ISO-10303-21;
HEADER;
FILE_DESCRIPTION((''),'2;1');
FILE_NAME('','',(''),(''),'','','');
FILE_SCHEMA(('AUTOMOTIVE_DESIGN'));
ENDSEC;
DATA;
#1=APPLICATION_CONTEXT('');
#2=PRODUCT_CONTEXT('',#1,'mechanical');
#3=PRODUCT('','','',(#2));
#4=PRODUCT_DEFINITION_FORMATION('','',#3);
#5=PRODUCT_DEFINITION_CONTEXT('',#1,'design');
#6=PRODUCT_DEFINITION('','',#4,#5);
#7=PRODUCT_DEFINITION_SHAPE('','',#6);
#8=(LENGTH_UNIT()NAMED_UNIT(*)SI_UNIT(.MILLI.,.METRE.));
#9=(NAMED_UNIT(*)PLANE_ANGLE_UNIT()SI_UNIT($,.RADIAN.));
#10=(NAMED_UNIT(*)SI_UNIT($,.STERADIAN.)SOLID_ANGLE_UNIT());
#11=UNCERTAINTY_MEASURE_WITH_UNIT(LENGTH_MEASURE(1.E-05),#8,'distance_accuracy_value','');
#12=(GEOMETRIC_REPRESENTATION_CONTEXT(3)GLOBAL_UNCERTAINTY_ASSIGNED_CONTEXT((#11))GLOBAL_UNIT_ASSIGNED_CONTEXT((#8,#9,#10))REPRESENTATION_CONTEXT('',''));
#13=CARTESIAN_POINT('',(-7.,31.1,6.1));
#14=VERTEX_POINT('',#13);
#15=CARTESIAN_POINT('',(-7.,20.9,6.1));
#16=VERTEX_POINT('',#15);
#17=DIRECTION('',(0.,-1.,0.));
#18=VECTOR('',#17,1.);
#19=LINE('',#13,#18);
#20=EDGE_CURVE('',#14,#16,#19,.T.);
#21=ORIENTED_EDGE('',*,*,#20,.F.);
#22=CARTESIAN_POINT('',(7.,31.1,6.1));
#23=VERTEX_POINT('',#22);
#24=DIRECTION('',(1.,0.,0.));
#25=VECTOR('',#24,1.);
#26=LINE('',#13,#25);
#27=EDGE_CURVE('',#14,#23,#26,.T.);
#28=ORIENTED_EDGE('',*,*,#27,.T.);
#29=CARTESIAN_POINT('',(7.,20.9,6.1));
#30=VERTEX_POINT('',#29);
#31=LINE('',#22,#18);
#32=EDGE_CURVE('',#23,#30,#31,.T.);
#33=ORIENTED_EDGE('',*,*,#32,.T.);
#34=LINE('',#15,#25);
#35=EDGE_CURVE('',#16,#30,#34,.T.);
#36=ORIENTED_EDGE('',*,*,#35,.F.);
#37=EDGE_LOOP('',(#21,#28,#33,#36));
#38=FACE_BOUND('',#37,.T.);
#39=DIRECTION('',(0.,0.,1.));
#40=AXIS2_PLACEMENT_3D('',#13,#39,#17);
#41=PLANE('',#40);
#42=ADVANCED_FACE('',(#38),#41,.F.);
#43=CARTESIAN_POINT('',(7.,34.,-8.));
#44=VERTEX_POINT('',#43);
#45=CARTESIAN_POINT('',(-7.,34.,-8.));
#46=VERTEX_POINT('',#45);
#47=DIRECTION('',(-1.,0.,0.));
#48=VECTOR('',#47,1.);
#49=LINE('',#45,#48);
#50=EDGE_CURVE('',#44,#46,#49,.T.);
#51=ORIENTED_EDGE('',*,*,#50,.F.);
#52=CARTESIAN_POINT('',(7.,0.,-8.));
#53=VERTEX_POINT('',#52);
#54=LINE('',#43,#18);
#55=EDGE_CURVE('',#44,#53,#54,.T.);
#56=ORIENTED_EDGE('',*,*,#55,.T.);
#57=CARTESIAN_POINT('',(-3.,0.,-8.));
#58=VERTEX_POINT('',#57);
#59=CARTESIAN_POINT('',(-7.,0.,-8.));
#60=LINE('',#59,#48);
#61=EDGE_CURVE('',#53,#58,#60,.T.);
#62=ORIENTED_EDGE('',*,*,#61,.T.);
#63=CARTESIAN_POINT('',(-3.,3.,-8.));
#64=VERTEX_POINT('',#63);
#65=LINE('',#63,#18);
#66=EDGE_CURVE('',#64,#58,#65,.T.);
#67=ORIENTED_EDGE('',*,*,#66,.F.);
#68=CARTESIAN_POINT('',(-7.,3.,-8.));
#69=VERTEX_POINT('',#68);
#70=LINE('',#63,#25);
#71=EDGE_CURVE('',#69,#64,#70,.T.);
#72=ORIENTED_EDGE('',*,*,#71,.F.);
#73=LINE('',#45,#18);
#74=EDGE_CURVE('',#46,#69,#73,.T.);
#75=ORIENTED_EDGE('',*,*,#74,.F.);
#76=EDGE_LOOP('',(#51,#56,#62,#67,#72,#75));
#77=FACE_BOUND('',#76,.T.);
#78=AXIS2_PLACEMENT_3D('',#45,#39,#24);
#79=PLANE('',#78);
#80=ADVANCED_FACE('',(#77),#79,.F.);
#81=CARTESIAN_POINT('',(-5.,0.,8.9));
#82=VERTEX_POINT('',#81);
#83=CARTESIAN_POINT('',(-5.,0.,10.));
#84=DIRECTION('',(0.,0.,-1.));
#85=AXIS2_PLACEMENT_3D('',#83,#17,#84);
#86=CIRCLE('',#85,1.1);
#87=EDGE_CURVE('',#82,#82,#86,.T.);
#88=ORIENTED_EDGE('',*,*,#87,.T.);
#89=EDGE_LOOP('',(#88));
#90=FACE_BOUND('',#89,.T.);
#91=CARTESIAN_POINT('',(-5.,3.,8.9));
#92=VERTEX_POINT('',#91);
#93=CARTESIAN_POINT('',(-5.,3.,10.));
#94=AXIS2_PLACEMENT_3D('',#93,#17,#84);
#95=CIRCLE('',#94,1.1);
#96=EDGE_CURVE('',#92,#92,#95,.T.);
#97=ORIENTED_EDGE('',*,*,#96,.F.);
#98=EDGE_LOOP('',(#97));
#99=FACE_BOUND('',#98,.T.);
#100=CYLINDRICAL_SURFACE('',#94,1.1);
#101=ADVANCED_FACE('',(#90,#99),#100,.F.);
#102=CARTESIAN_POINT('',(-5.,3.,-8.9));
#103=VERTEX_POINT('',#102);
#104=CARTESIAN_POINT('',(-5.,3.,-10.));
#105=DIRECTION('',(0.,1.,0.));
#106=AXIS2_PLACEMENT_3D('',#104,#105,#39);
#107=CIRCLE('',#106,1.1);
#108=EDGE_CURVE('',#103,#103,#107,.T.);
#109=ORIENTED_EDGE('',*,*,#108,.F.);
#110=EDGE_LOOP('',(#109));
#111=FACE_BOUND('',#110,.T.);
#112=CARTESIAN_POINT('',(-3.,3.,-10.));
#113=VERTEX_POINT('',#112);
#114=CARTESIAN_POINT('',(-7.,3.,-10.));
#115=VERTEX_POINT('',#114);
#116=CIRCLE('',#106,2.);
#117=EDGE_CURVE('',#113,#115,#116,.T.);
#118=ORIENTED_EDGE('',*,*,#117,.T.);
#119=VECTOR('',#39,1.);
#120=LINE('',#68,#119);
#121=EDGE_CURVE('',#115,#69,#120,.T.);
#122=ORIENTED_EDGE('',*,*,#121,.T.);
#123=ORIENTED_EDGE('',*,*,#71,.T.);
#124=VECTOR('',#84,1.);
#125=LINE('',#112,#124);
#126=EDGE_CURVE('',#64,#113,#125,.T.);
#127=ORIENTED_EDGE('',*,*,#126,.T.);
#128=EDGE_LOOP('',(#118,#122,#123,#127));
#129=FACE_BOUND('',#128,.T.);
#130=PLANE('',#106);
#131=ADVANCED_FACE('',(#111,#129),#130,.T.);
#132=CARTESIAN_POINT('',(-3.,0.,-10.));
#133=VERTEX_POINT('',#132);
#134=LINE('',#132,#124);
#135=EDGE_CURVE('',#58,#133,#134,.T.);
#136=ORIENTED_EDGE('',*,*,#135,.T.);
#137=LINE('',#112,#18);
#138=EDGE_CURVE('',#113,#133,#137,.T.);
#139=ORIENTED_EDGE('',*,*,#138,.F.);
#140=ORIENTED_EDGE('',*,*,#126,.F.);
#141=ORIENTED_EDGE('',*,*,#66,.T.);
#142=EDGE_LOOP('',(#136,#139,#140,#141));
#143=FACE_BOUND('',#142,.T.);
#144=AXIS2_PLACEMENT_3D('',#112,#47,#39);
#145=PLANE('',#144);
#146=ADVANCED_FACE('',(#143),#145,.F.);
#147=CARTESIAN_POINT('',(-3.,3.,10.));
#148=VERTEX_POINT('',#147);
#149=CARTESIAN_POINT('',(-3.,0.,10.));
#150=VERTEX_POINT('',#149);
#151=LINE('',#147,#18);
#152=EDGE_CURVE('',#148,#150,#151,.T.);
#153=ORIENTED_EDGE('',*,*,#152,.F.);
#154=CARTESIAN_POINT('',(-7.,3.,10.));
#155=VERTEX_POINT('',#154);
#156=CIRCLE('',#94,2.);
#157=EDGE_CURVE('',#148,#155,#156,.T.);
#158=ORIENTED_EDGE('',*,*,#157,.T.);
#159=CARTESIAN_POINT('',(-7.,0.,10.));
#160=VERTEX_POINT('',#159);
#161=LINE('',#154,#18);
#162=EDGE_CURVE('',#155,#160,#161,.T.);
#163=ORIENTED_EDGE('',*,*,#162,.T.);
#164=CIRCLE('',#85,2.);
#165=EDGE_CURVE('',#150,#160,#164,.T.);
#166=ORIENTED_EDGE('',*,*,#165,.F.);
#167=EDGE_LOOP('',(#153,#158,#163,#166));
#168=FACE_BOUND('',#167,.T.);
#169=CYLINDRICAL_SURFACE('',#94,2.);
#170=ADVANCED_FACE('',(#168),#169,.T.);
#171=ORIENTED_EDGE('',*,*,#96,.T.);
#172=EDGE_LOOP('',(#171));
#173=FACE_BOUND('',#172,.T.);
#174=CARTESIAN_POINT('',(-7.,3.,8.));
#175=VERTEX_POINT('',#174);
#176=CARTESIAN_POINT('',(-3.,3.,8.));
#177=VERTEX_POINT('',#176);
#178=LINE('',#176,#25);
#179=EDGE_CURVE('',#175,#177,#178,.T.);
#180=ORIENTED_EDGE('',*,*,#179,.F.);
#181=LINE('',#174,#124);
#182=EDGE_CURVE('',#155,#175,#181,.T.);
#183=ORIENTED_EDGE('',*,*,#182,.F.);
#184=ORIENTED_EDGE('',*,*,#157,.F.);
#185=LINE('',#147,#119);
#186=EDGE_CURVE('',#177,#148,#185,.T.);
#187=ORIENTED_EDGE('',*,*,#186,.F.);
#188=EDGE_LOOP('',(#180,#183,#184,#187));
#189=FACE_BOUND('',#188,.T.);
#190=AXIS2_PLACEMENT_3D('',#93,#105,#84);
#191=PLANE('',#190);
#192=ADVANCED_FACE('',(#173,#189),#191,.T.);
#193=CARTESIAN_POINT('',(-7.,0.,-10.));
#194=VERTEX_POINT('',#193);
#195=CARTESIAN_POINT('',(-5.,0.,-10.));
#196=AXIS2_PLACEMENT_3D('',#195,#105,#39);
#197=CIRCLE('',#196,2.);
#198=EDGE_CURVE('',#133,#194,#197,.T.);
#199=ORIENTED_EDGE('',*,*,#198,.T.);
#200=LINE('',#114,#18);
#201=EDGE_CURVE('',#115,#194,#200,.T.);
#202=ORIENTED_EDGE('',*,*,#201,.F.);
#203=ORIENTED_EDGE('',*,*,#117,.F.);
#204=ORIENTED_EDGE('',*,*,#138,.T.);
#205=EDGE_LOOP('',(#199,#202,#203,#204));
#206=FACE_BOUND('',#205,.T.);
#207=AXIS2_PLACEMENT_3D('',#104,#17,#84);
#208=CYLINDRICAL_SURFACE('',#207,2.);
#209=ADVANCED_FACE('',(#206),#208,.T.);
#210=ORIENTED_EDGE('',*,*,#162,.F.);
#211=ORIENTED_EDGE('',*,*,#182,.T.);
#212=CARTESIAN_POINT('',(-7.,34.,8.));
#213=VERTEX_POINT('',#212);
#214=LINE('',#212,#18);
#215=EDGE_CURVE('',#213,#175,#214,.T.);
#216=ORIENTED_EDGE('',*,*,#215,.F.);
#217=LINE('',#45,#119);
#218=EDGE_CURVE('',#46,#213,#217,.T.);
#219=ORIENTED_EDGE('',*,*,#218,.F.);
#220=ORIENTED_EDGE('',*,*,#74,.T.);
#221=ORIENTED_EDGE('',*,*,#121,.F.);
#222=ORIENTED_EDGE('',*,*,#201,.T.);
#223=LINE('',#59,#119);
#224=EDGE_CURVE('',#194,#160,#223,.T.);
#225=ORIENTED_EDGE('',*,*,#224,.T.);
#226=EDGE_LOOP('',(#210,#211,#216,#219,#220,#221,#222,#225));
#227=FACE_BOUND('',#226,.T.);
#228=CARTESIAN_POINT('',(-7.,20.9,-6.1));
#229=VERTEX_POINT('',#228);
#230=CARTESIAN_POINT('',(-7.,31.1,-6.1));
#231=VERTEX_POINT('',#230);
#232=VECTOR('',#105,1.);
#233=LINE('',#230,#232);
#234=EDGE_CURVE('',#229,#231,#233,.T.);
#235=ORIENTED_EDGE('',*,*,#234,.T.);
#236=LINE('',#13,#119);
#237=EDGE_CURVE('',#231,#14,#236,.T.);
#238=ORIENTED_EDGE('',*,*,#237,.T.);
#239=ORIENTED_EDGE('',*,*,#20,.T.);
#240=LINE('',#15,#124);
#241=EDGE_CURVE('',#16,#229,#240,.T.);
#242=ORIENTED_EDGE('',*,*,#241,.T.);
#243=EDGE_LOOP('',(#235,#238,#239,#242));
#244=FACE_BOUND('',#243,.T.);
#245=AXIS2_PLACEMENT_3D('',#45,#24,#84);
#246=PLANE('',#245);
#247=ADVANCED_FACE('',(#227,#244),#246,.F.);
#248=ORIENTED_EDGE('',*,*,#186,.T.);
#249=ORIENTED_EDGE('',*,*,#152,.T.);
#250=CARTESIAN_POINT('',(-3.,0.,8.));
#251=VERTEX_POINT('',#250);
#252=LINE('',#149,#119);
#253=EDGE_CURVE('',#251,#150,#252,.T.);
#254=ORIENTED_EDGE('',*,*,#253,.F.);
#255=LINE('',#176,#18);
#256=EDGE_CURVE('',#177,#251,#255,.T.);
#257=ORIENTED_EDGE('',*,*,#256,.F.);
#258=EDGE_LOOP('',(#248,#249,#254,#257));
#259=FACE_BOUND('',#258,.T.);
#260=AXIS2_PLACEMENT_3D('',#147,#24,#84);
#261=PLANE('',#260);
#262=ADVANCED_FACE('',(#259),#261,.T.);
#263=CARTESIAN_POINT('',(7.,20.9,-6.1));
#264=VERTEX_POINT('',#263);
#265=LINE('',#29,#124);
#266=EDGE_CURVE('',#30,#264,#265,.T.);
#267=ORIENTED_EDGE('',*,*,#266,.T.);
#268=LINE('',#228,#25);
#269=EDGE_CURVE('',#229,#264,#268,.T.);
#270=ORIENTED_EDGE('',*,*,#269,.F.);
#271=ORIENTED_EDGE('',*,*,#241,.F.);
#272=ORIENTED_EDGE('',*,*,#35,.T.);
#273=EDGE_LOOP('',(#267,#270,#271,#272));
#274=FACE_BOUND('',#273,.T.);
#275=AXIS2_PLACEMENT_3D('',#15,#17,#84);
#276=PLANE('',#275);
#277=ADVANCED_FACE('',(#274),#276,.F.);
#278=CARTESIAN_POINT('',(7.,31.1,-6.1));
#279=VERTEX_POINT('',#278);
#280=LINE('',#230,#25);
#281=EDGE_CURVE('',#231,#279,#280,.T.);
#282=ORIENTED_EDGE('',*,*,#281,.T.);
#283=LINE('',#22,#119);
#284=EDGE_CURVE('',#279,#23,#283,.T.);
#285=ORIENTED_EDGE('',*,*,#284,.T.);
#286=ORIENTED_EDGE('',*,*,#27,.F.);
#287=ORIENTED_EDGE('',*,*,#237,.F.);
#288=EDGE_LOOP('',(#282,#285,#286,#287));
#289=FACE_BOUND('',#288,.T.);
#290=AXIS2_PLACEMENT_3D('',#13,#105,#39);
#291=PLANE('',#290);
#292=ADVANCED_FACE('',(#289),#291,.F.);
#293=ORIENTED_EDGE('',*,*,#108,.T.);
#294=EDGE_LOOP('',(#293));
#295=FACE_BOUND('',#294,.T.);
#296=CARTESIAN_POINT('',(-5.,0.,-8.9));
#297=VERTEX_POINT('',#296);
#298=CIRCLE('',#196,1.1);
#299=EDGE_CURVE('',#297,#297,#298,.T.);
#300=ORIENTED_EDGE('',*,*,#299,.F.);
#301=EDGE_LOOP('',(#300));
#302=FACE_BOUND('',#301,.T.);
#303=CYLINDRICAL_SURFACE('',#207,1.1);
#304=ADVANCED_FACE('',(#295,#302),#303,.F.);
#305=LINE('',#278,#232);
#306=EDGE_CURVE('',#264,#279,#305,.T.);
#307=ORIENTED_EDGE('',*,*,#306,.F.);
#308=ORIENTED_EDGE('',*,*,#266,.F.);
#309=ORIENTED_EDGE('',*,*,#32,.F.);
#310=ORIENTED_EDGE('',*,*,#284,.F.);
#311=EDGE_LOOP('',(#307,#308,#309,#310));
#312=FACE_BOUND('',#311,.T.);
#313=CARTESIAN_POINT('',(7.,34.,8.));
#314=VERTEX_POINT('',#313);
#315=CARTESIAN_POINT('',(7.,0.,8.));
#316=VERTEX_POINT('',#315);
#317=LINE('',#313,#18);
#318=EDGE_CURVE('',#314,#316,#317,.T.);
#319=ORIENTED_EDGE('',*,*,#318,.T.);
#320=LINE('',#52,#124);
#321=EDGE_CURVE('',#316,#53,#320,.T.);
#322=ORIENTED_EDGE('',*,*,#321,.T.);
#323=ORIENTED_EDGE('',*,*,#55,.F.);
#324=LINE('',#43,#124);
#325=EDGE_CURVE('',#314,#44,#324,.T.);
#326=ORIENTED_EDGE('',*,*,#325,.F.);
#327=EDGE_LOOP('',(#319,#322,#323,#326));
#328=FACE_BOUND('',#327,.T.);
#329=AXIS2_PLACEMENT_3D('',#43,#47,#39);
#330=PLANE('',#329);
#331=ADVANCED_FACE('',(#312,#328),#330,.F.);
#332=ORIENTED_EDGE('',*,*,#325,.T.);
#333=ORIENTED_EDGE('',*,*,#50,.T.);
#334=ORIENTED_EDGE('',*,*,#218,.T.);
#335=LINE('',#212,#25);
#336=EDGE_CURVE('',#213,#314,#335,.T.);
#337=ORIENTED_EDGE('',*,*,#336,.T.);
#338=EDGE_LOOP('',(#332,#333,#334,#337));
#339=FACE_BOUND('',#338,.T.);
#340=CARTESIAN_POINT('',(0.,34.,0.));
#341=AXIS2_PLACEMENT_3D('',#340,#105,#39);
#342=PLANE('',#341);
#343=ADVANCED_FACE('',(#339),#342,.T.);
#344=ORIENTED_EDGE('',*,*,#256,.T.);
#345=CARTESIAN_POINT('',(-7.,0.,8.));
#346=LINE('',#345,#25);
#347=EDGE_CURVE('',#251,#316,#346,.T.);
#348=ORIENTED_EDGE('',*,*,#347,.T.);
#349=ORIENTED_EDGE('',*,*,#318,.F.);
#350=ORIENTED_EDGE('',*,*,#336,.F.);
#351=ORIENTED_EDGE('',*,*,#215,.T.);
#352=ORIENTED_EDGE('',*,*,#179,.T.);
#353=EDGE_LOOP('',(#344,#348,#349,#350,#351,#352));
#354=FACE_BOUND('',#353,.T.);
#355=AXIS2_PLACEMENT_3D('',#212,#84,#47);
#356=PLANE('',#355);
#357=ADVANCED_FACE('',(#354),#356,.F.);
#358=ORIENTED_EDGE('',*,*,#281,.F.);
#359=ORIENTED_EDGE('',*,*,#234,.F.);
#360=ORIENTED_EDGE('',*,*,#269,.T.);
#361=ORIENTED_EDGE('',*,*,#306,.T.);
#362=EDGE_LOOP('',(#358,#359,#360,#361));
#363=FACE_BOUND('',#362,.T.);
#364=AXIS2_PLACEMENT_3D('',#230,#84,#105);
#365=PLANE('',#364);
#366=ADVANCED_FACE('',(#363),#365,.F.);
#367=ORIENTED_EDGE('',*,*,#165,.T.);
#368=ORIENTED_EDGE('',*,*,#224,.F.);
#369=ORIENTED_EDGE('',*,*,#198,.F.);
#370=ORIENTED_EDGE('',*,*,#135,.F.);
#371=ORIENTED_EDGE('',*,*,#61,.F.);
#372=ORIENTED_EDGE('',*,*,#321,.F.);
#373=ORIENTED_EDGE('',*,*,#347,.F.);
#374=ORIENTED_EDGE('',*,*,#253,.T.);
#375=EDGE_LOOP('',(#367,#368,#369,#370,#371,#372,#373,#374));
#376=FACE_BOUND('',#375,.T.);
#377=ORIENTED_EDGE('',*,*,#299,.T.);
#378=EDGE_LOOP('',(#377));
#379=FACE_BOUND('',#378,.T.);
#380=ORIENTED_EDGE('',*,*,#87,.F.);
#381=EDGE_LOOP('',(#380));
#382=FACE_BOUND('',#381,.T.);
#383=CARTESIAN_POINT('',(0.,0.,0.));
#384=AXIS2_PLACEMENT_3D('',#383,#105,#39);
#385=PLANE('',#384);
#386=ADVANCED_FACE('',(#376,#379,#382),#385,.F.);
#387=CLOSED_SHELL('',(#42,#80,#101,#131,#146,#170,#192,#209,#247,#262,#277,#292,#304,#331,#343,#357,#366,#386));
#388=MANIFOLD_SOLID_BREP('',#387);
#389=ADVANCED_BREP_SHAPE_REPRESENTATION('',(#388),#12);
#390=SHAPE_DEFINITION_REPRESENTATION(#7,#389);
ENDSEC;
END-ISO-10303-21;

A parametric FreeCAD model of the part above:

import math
import FreeCAD as App
import Part
import Sketcher

V = App.Vector
Q = App.Units.Quantity

doc = App.newDocument("Part")
body = doc.addObject("PartDesign::Body", "Body")

# Sketch on XZ plane
sketch1 = body.newObject("Sketcher::SketchObject", "Sketch")
sketch1.AttachmentSupport = (doc.getObject("XZ_Plane"), [""])
sketch1.MapMode = "FlatFace"
sketch1.addGeometry(Part.LineSegment(V(-7, -8, 0), V(-7, 8, 0)), False)
sketch1.addGeometry(Part.LineSegment(V(-7, 8, 0), V(7, 8, 0)), False)
sketch1.addGeometry(Part.LineSegment(V(7, 8, 0), V(7, -8, 0)), False)
sketch1.addGeometry(Part.LineSegment(V(7, -8, 0), V(-7, -8, 0)), False)
sketch1.addConstraint(Sketcher.Constraint("Coincident", 0, 2, 1, 1))
sketch1.addConstraint(Sketcher.Constraint("Coincident", 1, 2, 2, 1))
sketch1.addConstraint(Sketcher.Constraint("Coincident", 2, 2, 3, 1))
sketch1.addConstraint(Sketcher.Constraint("Coincident", 3, 2, 0, 1))
sketch1.addConstraint(Sketcher.Constraint("Vertical", 0))
sketch1.addConstraint(Sketcher.Constraint("Horizontal", 1))
sketch1.addConstraint(Sketcher.Constraint("Vertical", 2))
sketch1.addConstraint(Sketcher.Constraint("Horizontal", 3))
sketch1.addConstraint(Sketcher.Constraint("Symmetric", 0, 2, 2, 2, -1, 1))
sketch1.addConstraint(Sketcher.Constraint("DistanceX", 1, 1, 1, 2, Q("14 mm")))
sketch1.addConstraint(Sketcher.Constraint("DistanceY", 0, 1, 0, 2, Q("16 mm")))
pad1 = body.newObject("PartDesign::Pad", "Pad")
pad1.Profile = sketch1
pad1.Length = 34
pad1.Reversed = True

# Sketch on YZ plane
sketch2 = body.newObject("Sketcher::SketchObject", "Sketch001")
sketch2.AttachmentSupport = (doc.getObject("YZ_Plane"), [""])
sketch2.MapMode = "FlatFace"
sketch2.addGeometry(Part.LineSegment(V(31, 6, 0), V(21, 6, 0)), False)
sketch2.addGeometry(Part.LineSegment(V(21, 6, 0), V(21, -6, 0)), False)
sketch2.addGeometry(Part.LineSegment(V(21, -6, 0), V(31, -6, 0)), False)
sketch2.addGeometry(Part.LineSegment(V(31, -6, 0), V(31, 6, 0)), False)
sketch2.addConstraint(Sketcher.Constraint("Coincident", 0, 2, 1, 1))
sketch2.addConstraint(Sketcher.Constraint("Coincident", 1, 2, 2, 1))
sketch2.addConstraint(Sketcher.Constraint("Coincident", 2, 2, 3, 1))
sketch2.addConstraint(Sketcher.Constraint("Coincident", 3, 2, 0, 1))
sketch2.addConstraint(Sketcher.Constraint("Horizontal", 0))
sketch2.addConstraint(Sketcher.Constraint("Vertical", 1))
sketch2.addConstraint(Sketcher.Constraint("Horizontal", 2))
sketch2.addConstraint(Sketcher.Constraint("Vertical", 3))
sketch2.addConstraint(Sketcher.Constraint("DistanceX", 0, 2, 0, 1, Q("10.2 mm")))
sketch2.addConstraint(Sketcher.Constraint("DistanceY", 1, 2, 1, 1, Q("12.2 mm")))
sketch2.addConstraint(Sketcher.Constraint("DistanceX", -1, 1, 0, 2, Q("20.9 mm")))
sketch2.addConstraint(Sketcher.Constraint("DistanceY", -1, 1, 0, 2, Q("6.1 mm")))
pocket1 = body.newObject("PartDesign::Pocket", "Pocket")
pocket1.Profile = sketch2
pocket1.Type = "ThroughAll"
pocket1.Midplane = True

# Sketch on XZ plane
sketch3 = body.newObject("Sketcher::SketchObject", "Sketch002")
sketch3.AttachmentSupport = (doc.getObject("XZ_Plane"), [""])
sketch3.MapMode = "FlatFace"
sketch3.addGeometry(Part.LineSegment(V(-7, -10, 0), V(-7, -8, 0)), False)
sketch3.addGeometry(Part.LineSegment(V(-7, -8, 0), V(-3, -8, 0)), False)
sketch3.addGeometry(Part.LineSegment(V(-3, -8, 0), V(-3, -10, 0)), False)
sketch3.addGeometry(Part.ArcOfCircle(Part.Circle(V(-5, -10, 0), V(0, 0, 1), 2), math.radians(180), math.radians(360)), False)
sketch3.addGeometry(Part.Circle(V(-5, -10, 0), V(0, 0, 1), 1.1), False)
sketch3.addConstraint(Sketcher.Constraint("Coincident", 0, 2, 1, 1))
sketch3.addConstraint(Sketcher.Constraint("Coincident", 1, 2, 2, 1))
sketch3.addConstraint(Sketcher.Constraint("Tangent", 2, 2, 3, 2))
sketch3.addConstraint(Sketcher.Constraint("Tangent", 3, 1, 0, 1))
sketch3.addConstraint(Sketcher.Constraint("Vertical", 0))
sketch3.addConstraint(Sketcher.Constraint("Horizontal", 1))
sketch3.addConstraint(Sketcher.Constraint("Vertical", 2))
sketch3.addConstraint(Sketcher.Constraint("Coincident", 4, 3, 3, 3))
sketch3.addConstraint(Sketcher.Constraint("Radius", 3, Q("2 mm")))
sketch3.addConstraint(Sketcher.Constraint("Diameter", 4, Q("2.2 mm")))
sketch3.addConstraint(Sketcher.Constraint("DistanceY", 0, 1, 0, 2, Q("2 mm")))
sketch3.addConstraint(Sketcher.Constraint("DistanceX", 3, 3, -1, 1, Q("5 mm")))
sketch3.addConstraint(Sketcher.Constraint("DistanceY", 3, 3, -1, 1, Q("10 mm")))
pad2 = body.newObject("PartDesign::Pad", "Pad001")
pad2.Profile = sketch3
pad2.Length = 3
pad2.Reversed = True
doc.recompute()

mirrored = body.newObject("PartDesign::Mirrored", "Mirrored")
mirrored.Originals = [pad2]
mirrored.MirrorPlane = (doc.getObject("XY_Plane"), [""])
body.Tip = mirrored

doc.recompute()
